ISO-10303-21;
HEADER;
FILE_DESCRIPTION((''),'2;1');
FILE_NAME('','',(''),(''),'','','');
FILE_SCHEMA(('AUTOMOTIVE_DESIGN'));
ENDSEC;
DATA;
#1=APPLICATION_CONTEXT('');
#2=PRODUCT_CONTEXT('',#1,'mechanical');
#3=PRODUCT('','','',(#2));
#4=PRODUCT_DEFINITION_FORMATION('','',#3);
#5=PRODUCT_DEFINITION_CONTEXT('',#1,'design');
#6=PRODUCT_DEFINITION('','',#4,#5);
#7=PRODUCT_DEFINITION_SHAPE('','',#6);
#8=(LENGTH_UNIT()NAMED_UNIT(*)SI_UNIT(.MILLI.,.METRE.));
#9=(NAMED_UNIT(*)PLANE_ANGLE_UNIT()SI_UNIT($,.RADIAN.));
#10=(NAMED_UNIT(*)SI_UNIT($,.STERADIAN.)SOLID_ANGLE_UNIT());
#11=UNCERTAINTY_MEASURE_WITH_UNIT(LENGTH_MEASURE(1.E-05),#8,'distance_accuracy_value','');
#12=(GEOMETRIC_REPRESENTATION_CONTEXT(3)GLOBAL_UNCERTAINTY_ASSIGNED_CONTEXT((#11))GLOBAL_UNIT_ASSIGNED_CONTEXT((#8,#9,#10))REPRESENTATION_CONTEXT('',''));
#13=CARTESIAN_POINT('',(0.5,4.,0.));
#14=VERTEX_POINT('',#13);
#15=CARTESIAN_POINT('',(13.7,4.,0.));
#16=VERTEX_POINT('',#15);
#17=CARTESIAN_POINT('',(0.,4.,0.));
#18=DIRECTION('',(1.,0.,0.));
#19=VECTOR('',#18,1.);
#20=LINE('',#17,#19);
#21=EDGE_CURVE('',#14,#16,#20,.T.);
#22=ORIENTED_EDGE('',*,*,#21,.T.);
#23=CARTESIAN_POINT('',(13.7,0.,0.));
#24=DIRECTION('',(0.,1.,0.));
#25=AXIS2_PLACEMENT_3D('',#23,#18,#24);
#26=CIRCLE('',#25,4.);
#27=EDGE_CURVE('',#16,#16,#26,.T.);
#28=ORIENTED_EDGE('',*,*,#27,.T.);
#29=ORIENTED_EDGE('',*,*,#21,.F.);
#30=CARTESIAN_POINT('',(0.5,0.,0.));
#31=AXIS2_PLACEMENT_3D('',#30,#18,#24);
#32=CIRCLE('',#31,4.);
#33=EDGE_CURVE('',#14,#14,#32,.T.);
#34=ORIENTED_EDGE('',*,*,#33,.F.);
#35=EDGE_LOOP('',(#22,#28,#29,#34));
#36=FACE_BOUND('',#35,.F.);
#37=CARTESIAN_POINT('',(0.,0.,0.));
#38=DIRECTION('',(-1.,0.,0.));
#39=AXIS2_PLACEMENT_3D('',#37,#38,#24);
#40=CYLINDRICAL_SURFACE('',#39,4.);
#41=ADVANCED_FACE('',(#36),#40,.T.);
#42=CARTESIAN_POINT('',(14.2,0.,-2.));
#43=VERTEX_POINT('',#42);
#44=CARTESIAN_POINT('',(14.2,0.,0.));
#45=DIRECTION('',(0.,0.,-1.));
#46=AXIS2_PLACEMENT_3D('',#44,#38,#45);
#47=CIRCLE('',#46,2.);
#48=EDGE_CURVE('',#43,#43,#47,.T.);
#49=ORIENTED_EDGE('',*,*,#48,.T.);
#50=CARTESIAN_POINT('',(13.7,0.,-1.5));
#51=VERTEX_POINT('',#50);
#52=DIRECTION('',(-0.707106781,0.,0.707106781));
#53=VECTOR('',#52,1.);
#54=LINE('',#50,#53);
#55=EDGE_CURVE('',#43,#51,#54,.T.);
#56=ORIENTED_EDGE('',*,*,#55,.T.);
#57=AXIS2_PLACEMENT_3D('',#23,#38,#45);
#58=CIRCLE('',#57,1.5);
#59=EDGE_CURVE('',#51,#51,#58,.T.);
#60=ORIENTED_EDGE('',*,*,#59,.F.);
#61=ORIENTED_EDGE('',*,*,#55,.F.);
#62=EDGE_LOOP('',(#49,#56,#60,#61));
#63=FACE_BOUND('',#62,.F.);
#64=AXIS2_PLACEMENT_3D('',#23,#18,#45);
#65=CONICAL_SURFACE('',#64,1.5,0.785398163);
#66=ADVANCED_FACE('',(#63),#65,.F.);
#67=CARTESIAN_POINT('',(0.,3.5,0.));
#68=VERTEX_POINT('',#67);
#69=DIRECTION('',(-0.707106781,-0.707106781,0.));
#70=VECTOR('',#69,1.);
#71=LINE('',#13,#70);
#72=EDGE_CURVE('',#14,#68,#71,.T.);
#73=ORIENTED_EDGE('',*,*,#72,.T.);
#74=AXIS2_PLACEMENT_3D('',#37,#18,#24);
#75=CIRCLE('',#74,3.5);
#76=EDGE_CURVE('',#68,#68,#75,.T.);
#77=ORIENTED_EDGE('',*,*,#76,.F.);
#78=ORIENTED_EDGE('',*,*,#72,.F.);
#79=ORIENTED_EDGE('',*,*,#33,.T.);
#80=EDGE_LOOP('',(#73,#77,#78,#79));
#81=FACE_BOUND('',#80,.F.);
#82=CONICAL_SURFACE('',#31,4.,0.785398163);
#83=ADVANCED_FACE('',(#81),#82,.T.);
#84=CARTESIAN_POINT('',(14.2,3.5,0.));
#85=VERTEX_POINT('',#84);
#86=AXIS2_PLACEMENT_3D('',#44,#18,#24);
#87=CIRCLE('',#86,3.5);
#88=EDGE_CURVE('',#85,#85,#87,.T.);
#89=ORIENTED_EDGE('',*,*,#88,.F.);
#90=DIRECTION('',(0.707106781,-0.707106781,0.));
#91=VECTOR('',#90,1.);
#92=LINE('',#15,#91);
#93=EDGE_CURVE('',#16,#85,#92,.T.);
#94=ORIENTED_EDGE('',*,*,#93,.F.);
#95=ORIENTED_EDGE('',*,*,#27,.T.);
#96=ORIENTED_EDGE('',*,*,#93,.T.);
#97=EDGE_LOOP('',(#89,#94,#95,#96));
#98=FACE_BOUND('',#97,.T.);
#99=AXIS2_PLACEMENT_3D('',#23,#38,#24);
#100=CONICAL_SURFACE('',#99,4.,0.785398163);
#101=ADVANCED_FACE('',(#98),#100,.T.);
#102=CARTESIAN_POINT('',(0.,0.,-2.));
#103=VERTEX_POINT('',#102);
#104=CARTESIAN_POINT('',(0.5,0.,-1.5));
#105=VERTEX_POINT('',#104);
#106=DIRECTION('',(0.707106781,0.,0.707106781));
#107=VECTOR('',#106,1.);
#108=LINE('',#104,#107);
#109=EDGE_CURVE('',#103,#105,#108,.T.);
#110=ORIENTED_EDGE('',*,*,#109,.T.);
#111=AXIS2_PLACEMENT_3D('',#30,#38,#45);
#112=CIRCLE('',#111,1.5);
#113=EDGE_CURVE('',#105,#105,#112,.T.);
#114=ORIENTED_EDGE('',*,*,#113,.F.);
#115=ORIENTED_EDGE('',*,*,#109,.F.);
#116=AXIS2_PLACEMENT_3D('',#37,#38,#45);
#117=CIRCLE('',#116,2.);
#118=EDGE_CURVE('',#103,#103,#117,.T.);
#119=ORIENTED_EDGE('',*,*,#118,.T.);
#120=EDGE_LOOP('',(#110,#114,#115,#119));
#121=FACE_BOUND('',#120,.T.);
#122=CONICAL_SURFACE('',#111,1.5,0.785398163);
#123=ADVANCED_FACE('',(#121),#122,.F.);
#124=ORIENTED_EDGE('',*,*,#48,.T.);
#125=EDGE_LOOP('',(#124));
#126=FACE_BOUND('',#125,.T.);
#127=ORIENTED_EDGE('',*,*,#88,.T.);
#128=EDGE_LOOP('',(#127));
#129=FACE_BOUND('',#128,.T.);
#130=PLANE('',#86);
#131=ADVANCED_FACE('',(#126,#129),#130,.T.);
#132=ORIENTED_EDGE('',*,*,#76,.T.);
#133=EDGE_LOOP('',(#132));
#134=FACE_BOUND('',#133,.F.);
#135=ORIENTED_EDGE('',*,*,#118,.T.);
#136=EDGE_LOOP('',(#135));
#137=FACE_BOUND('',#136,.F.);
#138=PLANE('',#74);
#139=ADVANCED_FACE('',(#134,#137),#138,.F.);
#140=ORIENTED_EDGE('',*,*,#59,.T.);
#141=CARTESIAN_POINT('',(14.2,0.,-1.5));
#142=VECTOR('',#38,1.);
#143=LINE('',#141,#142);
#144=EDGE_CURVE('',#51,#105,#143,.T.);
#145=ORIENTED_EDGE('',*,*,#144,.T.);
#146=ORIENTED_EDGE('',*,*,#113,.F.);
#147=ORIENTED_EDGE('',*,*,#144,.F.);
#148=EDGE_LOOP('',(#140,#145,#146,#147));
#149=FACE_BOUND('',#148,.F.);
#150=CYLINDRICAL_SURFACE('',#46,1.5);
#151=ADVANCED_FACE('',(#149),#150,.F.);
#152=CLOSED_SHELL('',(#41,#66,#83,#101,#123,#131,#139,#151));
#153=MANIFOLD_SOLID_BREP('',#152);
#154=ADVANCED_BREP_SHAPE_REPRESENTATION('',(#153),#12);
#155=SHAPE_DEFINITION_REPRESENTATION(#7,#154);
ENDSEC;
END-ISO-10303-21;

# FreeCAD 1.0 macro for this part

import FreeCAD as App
import Part
import Sketcher
Q = App.Units.Quantity


def edges_at(feature, points):
    """Names of the edges that pass closest to the given points."""
    edges = feature.Shape.Edges
    near = lambda p: min(range(len(edges)), key=lambda i: edges[i].distToShape(Part.Vertex(*p))[0])
    return sorted({f"Edge{near(p) + 1}" for p in points})

doc = App.newDocument("Part")
body = doc.addObject("PartDesign::Body", "Body")

sketch1 = doc.addObject("Sketcher::SketchObject", "Sketch")
body.addObject(sketch1)
sketch1.AttachmentSupport = (doc.YZ_Plane, [""])
sketch1.MapMode = "FlatFace"
sketch1.addGeometry(Part.Circle(App.Vector(0, 0, 0), App.Vector(0, 0, 1), 4), False)
sketch1.addConstraint([
    Sketcher.Constraint("Coincident", 0, 3, -1, 1),
    Sketcher.Constraint("Diameter", 0, Q("8 mm")),
])
pad1 = doc.addObject("PartDesign::Pad", "Pad")
body.addObject(pad1)
pad1.Profile = sketch1
pad1.Length = 14.2

sketch2 = doc.addObject("Sketcher::SketchObject", "Sketch001")
body.addObject(sketch2)
sketch2.AttachmentSupport = (doc.YZ_Plane, [""])
sketch2.MapMode = "FlatFace"
sketch2.AttachmentOffset = App.Placement(App.Vector(0, 0, 14.2), App.Rotation())
sketch2.addGeometry(Part.Circle(App.Vector(0, 0, 0), App.Vector(0, 0, 1), 1.5), False)
sketch2.addConstraint([
    Sketcher.Constraint("Coincident", 0, 3, -1, 1),
    Sketcher.Constraint("Diameter", 0, Q("3 mm")),
])
doc.recompute()
hole = doc.addObject("PartDesign::Hole", "Hole")
body.addObject(hole)
hole.Profile = sketch2
hole.ThreadType = "None"
hole.Diameter = 3
hole.DepthType = "ThroughAll"
doc.recompute()

chamfer = doc.addObject("PartDesign::Chamfer", "Chamfer")
body.addObject(chamfer)
chamfer.Base = (hole, edges_at(hole, [
    (0, -4, 0),
    (0, 0, 1.5),
    (14.2, 0, 1.5),
    (14.2, -4, 0),
]))
chamfer.Size = 0.5

doc.recompute()
